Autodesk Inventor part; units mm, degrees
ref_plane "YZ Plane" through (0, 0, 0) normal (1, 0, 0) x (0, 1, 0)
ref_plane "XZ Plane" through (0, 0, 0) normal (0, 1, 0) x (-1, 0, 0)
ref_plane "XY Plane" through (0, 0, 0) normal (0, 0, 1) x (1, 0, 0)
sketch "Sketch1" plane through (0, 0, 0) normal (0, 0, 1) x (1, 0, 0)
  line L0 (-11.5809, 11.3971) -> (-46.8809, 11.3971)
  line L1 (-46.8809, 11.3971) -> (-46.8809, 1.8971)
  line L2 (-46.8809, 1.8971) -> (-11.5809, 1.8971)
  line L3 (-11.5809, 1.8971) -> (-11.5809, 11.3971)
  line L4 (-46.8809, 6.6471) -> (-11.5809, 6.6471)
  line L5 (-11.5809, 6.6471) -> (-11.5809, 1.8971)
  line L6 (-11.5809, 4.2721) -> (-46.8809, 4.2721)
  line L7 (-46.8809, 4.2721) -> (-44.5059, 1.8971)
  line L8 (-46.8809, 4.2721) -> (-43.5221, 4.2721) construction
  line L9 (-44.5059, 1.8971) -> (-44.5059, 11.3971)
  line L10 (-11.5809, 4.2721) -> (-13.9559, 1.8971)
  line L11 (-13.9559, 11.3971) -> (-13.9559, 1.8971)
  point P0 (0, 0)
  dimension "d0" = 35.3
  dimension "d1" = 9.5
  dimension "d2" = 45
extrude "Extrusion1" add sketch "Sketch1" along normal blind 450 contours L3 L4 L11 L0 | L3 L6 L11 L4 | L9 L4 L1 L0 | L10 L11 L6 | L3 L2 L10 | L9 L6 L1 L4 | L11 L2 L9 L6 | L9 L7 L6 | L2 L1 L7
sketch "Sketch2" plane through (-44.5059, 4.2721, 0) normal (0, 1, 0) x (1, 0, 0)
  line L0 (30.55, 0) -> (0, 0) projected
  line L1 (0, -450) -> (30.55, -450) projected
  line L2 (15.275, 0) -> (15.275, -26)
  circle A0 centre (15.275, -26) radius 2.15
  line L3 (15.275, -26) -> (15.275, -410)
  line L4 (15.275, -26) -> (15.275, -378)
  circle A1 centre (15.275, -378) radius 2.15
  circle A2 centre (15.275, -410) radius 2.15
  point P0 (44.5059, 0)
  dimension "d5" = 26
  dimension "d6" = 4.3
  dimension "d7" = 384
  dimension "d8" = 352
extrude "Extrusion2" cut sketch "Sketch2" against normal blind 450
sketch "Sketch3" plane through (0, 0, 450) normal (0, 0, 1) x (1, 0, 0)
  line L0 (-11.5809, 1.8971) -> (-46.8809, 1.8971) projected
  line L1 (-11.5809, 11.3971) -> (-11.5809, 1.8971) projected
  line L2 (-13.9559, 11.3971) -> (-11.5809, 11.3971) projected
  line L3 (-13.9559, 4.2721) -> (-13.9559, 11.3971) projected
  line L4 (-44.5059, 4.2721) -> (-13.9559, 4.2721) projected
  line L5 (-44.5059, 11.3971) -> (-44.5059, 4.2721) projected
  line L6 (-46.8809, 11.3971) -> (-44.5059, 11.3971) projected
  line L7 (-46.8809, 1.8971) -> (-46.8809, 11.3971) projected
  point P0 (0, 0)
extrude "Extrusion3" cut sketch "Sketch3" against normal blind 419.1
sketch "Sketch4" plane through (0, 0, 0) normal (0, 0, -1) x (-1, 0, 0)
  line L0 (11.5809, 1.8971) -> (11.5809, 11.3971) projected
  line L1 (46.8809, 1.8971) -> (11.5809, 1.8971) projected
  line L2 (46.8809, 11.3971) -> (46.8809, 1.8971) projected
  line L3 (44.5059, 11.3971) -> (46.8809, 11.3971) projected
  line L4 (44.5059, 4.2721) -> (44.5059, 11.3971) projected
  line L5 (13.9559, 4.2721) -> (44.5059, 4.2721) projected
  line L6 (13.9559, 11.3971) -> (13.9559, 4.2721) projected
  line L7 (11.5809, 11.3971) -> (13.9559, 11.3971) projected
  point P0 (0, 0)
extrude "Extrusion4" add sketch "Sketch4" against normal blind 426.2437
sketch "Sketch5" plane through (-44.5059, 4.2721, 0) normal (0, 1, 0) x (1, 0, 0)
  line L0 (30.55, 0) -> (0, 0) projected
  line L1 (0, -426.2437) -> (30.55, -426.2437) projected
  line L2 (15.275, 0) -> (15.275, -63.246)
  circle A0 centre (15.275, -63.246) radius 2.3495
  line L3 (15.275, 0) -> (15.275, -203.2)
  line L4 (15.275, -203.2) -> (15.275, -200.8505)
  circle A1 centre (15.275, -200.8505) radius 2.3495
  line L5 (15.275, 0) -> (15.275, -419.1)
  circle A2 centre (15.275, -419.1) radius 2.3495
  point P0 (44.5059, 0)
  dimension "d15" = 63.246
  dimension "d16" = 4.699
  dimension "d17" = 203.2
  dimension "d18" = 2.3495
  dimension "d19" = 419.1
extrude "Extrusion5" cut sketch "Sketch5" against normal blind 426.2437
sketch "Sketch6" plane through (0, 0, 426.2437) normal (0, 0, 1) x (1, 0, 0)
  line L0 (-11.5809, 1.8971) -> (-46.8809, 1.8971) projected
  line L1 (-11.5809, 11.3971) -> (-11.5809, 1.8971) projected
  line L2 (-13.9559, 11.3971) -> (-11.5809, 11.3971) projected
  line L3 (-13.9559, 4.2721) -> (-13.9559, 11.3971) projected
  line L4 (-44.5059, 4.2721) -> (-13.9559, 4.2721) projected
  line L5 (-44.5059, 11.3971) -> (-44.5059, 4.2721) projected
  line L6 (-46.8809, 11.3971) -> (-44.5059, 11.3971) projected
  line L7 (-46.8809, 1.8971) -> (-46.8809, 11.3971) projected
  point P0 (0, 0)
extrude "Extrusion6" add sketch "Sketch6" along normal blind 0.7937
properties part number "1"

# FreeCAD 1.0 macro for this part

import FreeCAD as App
import Part
import Sketcher
Q = App.Units.Quantity


def add_polygon(sketch, points):
    """Adds a closed chain of lines whose ends are joined by coincident constraints."""
    first, n = sketch.GeometryCount, len(points)
    for a, b in zip(points, points[1:] + points[:1]):
        sketch.addGeometry(Part.LineSegment(App.Vector(*a, 0), App.Vector(*b, 0)), False)
    for i in range(n):
        sketch.addConstraint(Sketcher.Constraint("Coincident", first + i, 2, first + (i + 1) % n, 1))

doc = App.newDocument("Part")
body = doc.addObject("PartDesign::Body", "Body")

# Sketch on XY plane
sketch1 = body.newObject("Sketcher::SketchObject", "Sketch")
sketch1.AttachmentSupport = (doc.getObject("XY_Plane"), [""])
sketch1.MapMode = "FlatFace"
add_polygon(sketch1, [(-11.6, 11.4), (-14, 11.4), (-14, 4.3), (-44.5, 4.3), (-44.5, 11.4), (-46.9, 11.4), (-46.9, 1.9), (-11.6, 1.9)])  # lines 0-7
sketch1.addConstraint([
    Sketcher.Constraint("Horizontal", 0),
    Sketcher.Constraint("Vertical", 1),
    Sketcher.Constraint("Horizontal", 2),
    Sketcher.Constraint("Vertical", 3),
    Sketcher.Constraint("Horizontal", 4),
    Sketcher.Constraint("Vertical", 5),
    Sketcher.Constraint("Horizontal", 6),
    Sketcher.Constraint("Vertical", 7),
    Sketcher.Constraint("Horizontal", 0, 2, 3, 2),
    Sketcher.Constraint("Equal", 0, 4),
    Sketcher.Constraint("DistanceX", 6, 1, 6, 2, 35.3),
    Sketcher.Constraint("DistanceY", 5, 2, 5, 1, 9.5),
    Sketcher.Constraint("DistanceX", 0, 2, 0, 1, Q("0.0935 in")),
    Sketcher.Constraint("DistanceY", 1, 2, 1, 1, Q("0.2805 in")),
    Sketcher.Constraint("DistanceY", -1, 1, 0, 2, Q("0.4487 in")),
    Sketcher.Constraint("DistanceX", 2, 2, -1, 1, Q("1.7522 in")),
])
pad1 = body.newObject("PartDesign::Pad", "Pad")
pad1.Profile = sketch1
pad1.Length = 450

# Sketch on XZ plane
sketch2 = body.newObject("Sketcher::SketchObject", "Sketch001")
sketch2.AttachmentSupport = (doc.getObject("XZ_Plane"), [""])
sketch2.MapMode = "FlatFace"
sketch2.AttachmentOffset = App.Placement(App.Vector(0, 0, -0.1681929 * 25.4), App.Rotation())
sketch2.addGeometry([
    Part.Circle(App.Vector(-29.2, 26, 0), App.Vector(0, 0, 1), 2.1),
    Part.Circle(App.Vector(-29.2, 410, 0), App.Vector(0, 0, 1), 2.1),
    Part.Circle(App.Vector(-29.2, 378, 0), App.Vector(0, 0, 1), 2.1),
], False)
sketch2.addConstraint([
    Sketcher.Constraint("Equal", 0, 1),
    Sketcher.Constraint("Equal", 1, 2),
    Sketcher.Constraint("Vertical", 0, 3, 1, 3),
    Sketcher.Constraint("Vertical", 1, 3, 2, 3),
    Sketcher.Constraint("Diameter", 0, Q("0.1693 in")),
    Sketcher.Constraint("DistanceY", 0, 3, 1, 3, Q("15.1181 in")),
    Sketcher.Constraint("DistanceY", -1, 1, 0, 3, 26.0),
    Sketcher.Constraint("DistanceY", 0, 3, 2, 3, 352.0),
    Sketcher.Constraint("DistanceX", 0, 3, -1, 1, 29.231),
])
pocket1 = body.newObject("PartDesign::Pocket", "Pocket")
pocket1.Profile = sketch2
pocket1.Length = 450
pocket1.Reversed = True

# Sketch on XY plane
sketch3 = body.newObject("Sketcher::SketchObject", "Sketch002")
sketch3.AttachmentSupport = (doc.getObject("XY_Plane"), [""])
sketch3.MapMode = "FlatFace"
sketch3.AttachmentOffset = App.Placement(App.Vector(0, 0, 450), App.Rotation())
add_polygon(sketch3, [(-46.9, 1.9), (-11.6, 1.9), (-11.6, 11.4), (-14, 11.4), (-14, 4.3), (-44.5, 4.3), (-44.5, 11.4), (-46.9, 11.4)])  # lines 0-7
sketch3.addConstraint([
    Sketcher.Constraint("Horizontal", 0),
    Sketcher.Constraint("Vertical", 1),
    Sketcher.Constraint("Horizontal", 2),
    Sketcher.Constraint("Vertical", 3),
    Sketcher.Constraint("Horizontal", 4),
    Sketcher.Constraint("Vertical", 5),
    Sketcher.Constraint("Horizontal", 6),
    Sketcher.Constraint("Vertical", 7),
    Sketcher.Constraint("Horizontal", 2, 2, 5, 2),
    Sketcher.Constraint("Equal", 2, 6),
    Sketcher.Constraint("DistanceX", 2, 2, 2, 1, Q("0.0935 in")),
    Sketcher.Constraint("DistanceY", 3, 2, 3, 1, Q("0.2805 in")),
    Sketcher.Constraint("DistanceX", 0, 1, 0, 2, 35.3),
    Sketcher.Constraint("DistanceY", 1, 1, 1, 2, 9.5),
    Sketcher.Constraint("DistanceY", -1, 1, 0, 2, Q("0.0747 in")),
    Sketcher.Constraint("DistanceX", 4, 2, -1, 1, Q("1.7522 in")),
])
pocket2 = body.newObject("PartDesign::Pocket", "Pocket001")
pocket2.Profile = sketch3
pocket2.Length = Q("16.5 in")

# Sketch on XY plane
sketch4 = body.newObject("Sketcher::SketchObject", "Sketch003")
sketch4.AttachmentSupport = (doc.getObject("XY_Plane"), [""])
sketch4.MapMode = "FlatFace"
add_polygon(sketch4, [(-11.6, 11.4), (-11.6, 1.9), (-46.9, 1.9), (-46.9, 11.4), (-44.5, 11.4), (-44.5, 4.3), (-14, 4.3), (-14, 11.4)])  # lines 0-7
sketch4.addConstraint([
    Sketcher.Constraint("Vertical", 0),
    Sketcher.Constraint("Horizontal", 1),
    Sketcher.Constraint("Vertical", 2),
    Sketcher.Constraint("Horizontal", 3),
    Sketcher.Constraint("Vertical", 4),
    Sketcher.Constraint("Horizontal", 5),
    Sketcher.Constraint("Vertical", 6),
    Sketcher.Constraint("Horizontal", 7),
    Sketcher.Constraint("Horizontal", 3, 2, 6, 2),
    Sketcher.Constraint("Equal", 3, 7),
    Sketcher.Constraint("DistanceX", 3, 1, 3, 2, Q("0.0935 in")),
    Sketcher.Constraint("DistanceY", 4, 2, 4, 1, Q("0.2805 in")),
    Sketcher.Constraint("DistanceX", 1, 2, 1, 1, 35.3),
    Sketcher.Constraint("DistanceY", 0, 2, 0, 1, 9.5),
    Sketcher.Constraint("DistanceY", -1, 1, 0, 2, Q("0.0747 in")),
    Sketcher.Constraint("DistanceX", 1, 2, -1, 1, Q("1.8457 in")),
])
pad2 = body.newObject("PartDesign::Pad", "Pad001")
pad2.Profile = sketch4
pad2.Length = Q("16.781248 in")

# Sketch on XZ plane
sketch5 = body.newObject("Sketcher::SketchObject", "Sketch004")
sketch5.AttachmentSupport = (doc.getObject("XZ_Plane"), [""])
sketch5.MapMode = "FlatFace"
sketch5.AttachmentOffset = App.Placement(App.Vector(0, 0, -0.1681929 * 25.4), App.Rotation())
sketch5.addGeometry([
    Part.Circle(App.Vector(-29.2, 63.2, 0), App.Vector(0, 0, 1), 2.3),
    Part.Circle(App.Vector(-29.2, 419.1, 0), App.Vector(0, 0, 1), 2.3),
    Part.Circle(App.Vector(-29.2, 200.9, 0), App.Vector(0, 0, 1), 2.3),
], False)
sketch5.addConstraint([
    Sketcher.Constraint("Equal", 0, 1),
    Sketcher.Constraint("Equal", 1, 2),
    Sketcher.Constraint("Vertical", 0, 3, 1, 3),
    Sketcher.Constraint("Vertical", 1, 3, 2, 3),
    Sketcher.Constraint("Diameter", 0, Q("0.185 in")),
    Sketcher.Constraint("DistanceY", -1, 1, 1, 3, Q("16.5 in")),
    Sketcher.Constraint("DistanceY", -1, 1, 0, 3, Q("2.49 in")),
    Sketcher.Constraint("DistanceY", -1, 1, 2, 3, Q("7.9075 in")),
    Sketcher.Constraint("DistanceX", 0, 3, -1, 1, 29.231),
])
pocket3 = body.newObject("PartDesign::Pocket", "Pocket002")
pocket3.Profile = sketch5
pocket3.Length = Q("16.781248 in")
pocket3.Reversed = True

# Sketch on XY plane
sketch6 = body.newObject("Sketcher::SketchObject", "Sketch005")
sketch6.AttachmentSupport = (doc.getObject("XY_Plane"), [""])
sketch6.MapMode = "FlatFace"
sketch6.AttachmentOffset = App.Placement(App.Vector(0, 0, 16.781248 * 25.4), App.Rotation())
add_polygon(sketch6, [(-46.9, 1.9), (-11.6, 1.9), (-11.6, 11.4), (-14, 11.4), (-14, 4.3), (-44.5, 4.3), (-44.5, 11.4), (-46.9, 11.4)])  # lines 0-7
sketch6.addConstraint([
    Sketcher.Constraint("Horizontal", 0),
    Sketcher.Constraint("Vertical", 1),
    Sketcher.Constraint("Horizontal", 2),
    Sketcher.Constraint("Vertical", 3),
    Sketcher.Constraint("Horizontal", 4),
    Sketcher.Constraint("Vertical", 5),
    Sketcher.Constraint("Horizontal", 6),
    Sketcher.Constraint("Vertical", 7),
    Sketcher.Constraint("Horizontal", 2, 2, 5, 2),
    Sketcher.Constraint("Equal", 2, 6),
    Sketcher.Constraint("DistanceX", 2, 2, 2, 1, Q("0.0935 in")),
    Sketcher.Constraint("DistanceY", 3, 2, 3, 1, Q("0.2805 in")),
    Sketcher.Constraint("DistanceX", 0, 1, 0, 2, 35.3),
    Sketcher.Constraint("DistanceY", 1, 1, 1, 2, 9.5),
    Sketcher.Constraint("DistanceY", -1, 1, 0, 2, Q("0.0747 in")),
    Sketcher.Constraint("DistanceX", 4, 2, -1, 1, Q("1.7522 in")),
])
pad3 = body.newObject("PartDesign::Pad", "Pad002")
pad3.Profile = sketch6
pad3.Length = Q("0.031248 in")

doc.recompute()
